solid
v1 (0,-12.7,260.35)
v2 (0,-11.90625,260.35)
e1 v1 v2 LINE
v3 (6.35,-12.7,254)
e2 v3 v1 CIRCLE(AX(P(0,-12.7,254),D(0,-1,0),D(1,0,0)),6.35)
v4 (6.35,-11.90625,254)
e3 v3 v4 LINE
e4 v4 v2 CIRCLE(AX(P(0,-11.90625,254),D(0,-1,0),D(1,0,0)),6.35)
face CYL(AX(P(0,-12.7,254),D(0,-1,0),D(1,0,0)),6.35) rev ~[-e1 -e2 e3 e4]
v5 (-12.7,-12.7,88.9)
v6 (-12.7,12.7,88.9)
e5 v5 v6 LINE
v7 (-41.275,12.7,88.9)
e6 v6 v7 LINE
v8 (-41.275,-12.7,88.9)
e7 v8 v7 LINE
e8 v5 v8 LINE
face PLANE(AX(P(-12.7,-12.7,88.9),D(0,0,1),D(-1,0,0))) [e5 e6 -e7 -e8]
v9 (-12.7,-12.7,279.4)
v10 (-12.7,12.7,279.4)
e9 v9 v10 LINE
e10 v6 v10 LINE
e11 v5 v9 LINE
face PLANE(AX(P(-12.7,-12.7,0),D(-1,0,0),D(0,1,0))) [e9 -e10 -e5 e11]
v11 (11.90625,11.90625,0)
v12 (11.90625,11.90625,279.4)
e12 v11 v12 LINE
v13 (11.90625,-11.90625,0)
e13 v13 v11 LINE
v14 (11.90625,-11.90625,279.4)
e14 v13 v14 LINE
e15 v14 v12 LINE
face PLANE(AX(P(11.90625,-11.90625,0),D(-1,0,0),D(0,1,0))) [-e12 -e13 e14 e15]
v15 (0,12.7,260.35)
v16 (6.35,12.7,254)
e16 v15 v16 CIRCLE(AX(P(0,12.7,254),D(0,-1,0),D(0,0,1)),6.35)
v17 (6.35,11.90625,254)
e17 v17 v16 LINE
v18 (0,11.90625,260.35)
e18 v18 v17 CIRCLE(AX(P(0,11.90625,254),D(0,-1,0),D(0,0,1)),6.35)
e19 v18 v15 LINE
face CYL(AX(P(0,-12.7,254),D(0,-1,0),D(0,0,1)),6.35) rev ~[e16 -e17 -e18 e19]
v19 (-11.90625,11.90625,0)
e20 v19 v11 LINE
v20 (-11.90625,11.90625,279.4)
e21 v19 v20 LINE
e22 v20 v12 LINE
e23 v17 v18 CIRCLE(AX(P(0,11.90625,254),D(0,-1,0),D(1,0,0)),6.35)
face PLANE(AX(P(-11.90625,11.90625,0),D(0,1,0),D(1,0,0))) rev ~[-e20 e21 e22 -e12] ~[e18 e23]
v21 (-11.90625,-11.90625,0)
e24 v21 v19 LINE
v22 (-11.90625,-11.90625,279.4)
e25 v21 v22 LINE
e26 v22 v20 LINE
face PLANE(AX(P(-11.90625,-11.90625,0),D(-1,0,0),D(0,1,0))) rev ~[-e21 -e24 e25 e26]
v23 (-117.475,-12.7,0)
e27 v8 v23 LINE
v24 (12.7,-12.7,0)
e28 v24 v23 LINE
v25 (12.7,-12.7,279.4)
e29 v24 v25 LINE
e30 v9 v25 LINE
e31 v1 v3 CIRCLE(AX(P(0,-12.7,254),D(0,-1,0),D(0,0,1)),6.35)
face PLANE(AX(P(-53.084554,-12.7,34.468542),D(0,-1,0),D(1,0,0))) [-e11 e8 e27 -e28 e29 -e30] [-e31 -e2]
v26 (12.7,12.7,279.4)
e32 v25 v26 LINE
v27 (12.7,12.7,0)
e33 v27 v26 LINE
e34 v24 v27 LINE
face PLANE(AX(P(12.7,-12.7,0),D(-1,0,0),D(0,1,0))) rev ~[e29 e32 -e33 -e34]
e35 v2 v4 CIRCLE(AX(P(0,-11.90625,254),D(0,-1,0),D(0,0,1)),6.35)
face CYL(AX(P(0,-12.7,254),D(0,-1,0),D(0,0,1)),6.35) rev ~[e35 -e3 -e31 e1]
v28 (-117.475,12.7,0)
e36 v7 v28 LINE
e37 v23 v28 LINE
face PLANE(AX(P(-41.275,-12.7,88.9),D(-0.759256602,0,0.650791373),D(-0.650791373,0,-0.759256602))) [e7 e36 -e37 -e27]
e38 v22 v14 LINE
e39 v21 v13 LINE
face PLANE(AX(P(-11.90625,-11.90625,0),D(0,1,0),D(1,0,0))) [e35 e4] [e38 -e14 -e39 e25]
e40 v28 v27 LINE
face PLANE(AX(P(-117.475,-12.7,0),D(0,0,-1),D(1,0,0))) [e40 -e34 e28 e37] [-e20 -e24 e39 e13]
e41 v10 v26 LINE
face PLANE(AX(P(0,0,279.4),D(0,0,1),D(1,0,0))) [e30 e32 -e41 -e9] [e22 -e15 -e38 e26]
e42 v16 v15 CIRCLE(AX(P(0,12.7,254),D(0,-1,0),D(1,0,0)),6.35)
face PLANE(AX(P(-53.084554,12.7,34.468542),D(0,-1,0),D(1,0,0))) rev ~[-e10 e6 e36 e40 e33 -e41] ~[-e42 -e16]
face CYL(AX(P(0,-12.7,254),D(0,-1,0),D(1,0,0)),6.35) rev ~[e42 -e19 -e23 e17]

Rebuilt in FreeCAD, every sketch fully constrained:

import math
import FreeCAD as App
import Part
import Sketcher
from FreeCAD import Vector
Q = App.Units.Quantity

doc = App.newDocument("Part")
body = doc.addObject("PartDesign::Body", "Body")

# Sketch on XY plane
sketch1 = doc.addObject("Sketcher::SketchObject", "Sketch")
body.addObject(sketch1)
sketch1.AttachmentSupport = (doc.XY_Plane, [""])
sketch1.MapMode = "FlatFace"
sketch1.addGeometry([
    Part.LineSegment(Vector(-13, 13, 0), Vector(-13, -13, 0)),  # 0
    Part.LineSegment(Vector(-13, -13, 0), Vector(13, -13, 0)),  # 1
    Part.LineSegment(Vector(13, -13, 0), Vector(13, 13, 0)),  # 2
    Part.LineSegment(Vector(13, 13, 0), Vector(-13, 13, 0)),  # 3
    Part.LineSegment(Vector(12, -12, 0), Vector(-12, -12, 0)),  # 4
    Part.LineSegment(Vector(-12, -12, 0), Vector(-12, 12, 0)),  # 5
    Part.LineSegment(Vector(-12, 12, 0), Vector(12, 12, 0)),  # 6
    Part.LineSegment(Vector(12, 12, 0), Vector(12, -12, 0)),  # 7
], False)
sketch1.addConstraint([
    Sketcher.Constraint("Coincident", 0, 2, 1, 1),
    Sketcher.Constraint("Coincident", 1, 2, 2, 1),
    Sketcher.Constraint("Coincident", 2, 2, 3, 1),
    Sketcher.Constraint("Coincident", 3, 2, 0, 1),
    Sketcher.Constraint("Coincident", 4, 2, 5, 1),
    Sketcher.Constraint("Coincident", 5, 2, 6, 1),
    Sketcher.Constraint("Coincident", 6, 2, 7, 1),
    Sketcher.Constraint("Coincident", 7, 2, 4, 1),
    Sketcher.Constraint("Vertical", 0),
    Sketcher.Constraint("Horizontal", 1),
    Sketcher.Constraint("Vertical", 2),
    Sketcher.Constraint("Horizontal", 3),
    Sketcher.Constraint("Horizontal", 4),
    Sketcher.Constraint("Vertical", 5),
    Sketcher.Constraint("Horizontal", 6),
    Sketcher.Constraint("Vertical", 7),
    Sketcher.Constraint("Symmetric", 0, 2, 2, 2, -1, 1),
    Sketcher.Constraint("Symmetric", 4, 2, 6, 2, -1, 1),
    Sketcher.Constraint("Equal", 3, 0),
    Sketcher.Constraint("Equal", 6, 5),
    Sketcher.Constraint("DistanceX", 1, 1, 1, 2, Q("1 in")),
    Sketcher.Constraint("DistanceX", 4, 2, 4, 1, Q("0.9375 in")),
])
pad1 = doc.addObject("PartDesign::Pad", "Pad")
body.addObject(pad1)
pad1.Profile = sketch1
pad1.Length = Q("11 in")
body2 = doc.addObject("PartDesign::Body", "Body001")

# Sketch on XZ plane
sketch2 = doc.addObject("Sketcher::SketchObject", "Sketch001")
body2.addObject(sketch2)
sketch2.AttachmentSupport = (doc.getObject("XZ_Plane001"), [""])
sketch2.MapMode = "FlatFace"
sketch2.AttachmentOffset = App.Placement(Vector(0, 0, 0.5 * 25.4), App.Rotation())
sketch2.addGeometry([
    Part.LineSegment(Vector(-117, 0, 0), Vector(-13, 0, 0)),
    Part.LineSegment(Vector(-13, 0, 0), Vector(-13, 89, 0)),
    Part.LineSegment(Vector(-13, 89, 0), Vector(-41, 89, 0)),
    Part.LineSegment(Vector(-41, 89, 0), Vector(-117, 0, 0)),
], False)
sketch2.addConstraint([
    Sketcher.Constraint("Coincident", 0, 2, 1, 1),
    Sketcher.Constraint("Coincident", 1, 2, 2, 1),
    Sketcher.Constraint("Coincident", 2, 2, 3, 1),
    Sketcher.Constraint("Coincident", 3, 2, 0, 1),
    Sketcher.Constraint("Horizontal", 0),
    Sketcher.Constraint("Vertical", 1),
    Sketcher.Constraint("Horizontal", 2),
    Sketcher.Constraint("PointOnObject", 0, 2, -1),
    Sketcher.Constraint("DistanceY", 1, 1, 1, 2, Q("3.5 in")),
    Sketcher.Constraint("DistanceX", 3, 2, 2, 2, Q("3 in")),
    Sketcher.Constraint("DistanceX", 0, 2, -1, 1, Q("0.5 in")),
    Sketcher.Constraint("DistanceX", 0, 1, 0, 2, Q("4.125 in")),
])
pad2 = doc.addObject("PartDesign::Pad", "Pad001")
body2.addObject(pad2)
pad2.Profile = sketch2
pad2.Length = Q("1 in")
pad2.Reversed = True
doc.recompute()

boolean = doc.addObject("PartDesign::Boolean", "Boolean")
body.addObject(boolean)
boolean.Type = "Fuse"
boolean.addObjects([body2])

# Sketch on XZ plane
sketch3 = doc.addObject("Sketcher::SketchObject", "Sketch002")
body.addObject(sketch3)
sketch3.AttachmentSupport = (doc.XZ_Plane, [""])
sketch3.MapMode = "FlatFace"
sketch3.AttachmentOffset = App.Placement(Vector(0, 0, 0.5 * 25.4), App.Rotation())
sketch3.addGeometry([
    Part.ArcOfCircle(Part.Circle(Vector(0, 254, 0), Vector(0, 0, 1), 6), math.radians(0), math.radians(90)),
    Part.ArcOfCircle(Part.Circle(Vector(0, 254, 0), Vector(0, 0, 1), 6), math.radians(90), math.radians(360)),
], False)
sketch3.addConstraint([
    Sketcher.Constraint("Tangent", 0, 1, 1, 2),
    Sketcher.Constraint("Coincident", 1, 1, 0, 2),
    Sketcher.Constraint("PointOnObject", 0, 3, -2),
    Sketcher.Constraint("PointOnObject", 1, 1, -2),
    Sketcher.Constraint("Horizontal", 1, 3, 0, 1),
    Sketcher.Constraint("Radius", 0, Q("0.25 in")),
    Sketcher.Constraint("DistanceY", -1, 1, 0, 3, Q("10 in")),
])
pocket1 = doc.addObject("PartDesign::Pocket", "Pocket")
body.addObject(pocket1)
pocket1.Profile = sketch3
pocket1.Length = Q("1 in")

doc.recompute()
